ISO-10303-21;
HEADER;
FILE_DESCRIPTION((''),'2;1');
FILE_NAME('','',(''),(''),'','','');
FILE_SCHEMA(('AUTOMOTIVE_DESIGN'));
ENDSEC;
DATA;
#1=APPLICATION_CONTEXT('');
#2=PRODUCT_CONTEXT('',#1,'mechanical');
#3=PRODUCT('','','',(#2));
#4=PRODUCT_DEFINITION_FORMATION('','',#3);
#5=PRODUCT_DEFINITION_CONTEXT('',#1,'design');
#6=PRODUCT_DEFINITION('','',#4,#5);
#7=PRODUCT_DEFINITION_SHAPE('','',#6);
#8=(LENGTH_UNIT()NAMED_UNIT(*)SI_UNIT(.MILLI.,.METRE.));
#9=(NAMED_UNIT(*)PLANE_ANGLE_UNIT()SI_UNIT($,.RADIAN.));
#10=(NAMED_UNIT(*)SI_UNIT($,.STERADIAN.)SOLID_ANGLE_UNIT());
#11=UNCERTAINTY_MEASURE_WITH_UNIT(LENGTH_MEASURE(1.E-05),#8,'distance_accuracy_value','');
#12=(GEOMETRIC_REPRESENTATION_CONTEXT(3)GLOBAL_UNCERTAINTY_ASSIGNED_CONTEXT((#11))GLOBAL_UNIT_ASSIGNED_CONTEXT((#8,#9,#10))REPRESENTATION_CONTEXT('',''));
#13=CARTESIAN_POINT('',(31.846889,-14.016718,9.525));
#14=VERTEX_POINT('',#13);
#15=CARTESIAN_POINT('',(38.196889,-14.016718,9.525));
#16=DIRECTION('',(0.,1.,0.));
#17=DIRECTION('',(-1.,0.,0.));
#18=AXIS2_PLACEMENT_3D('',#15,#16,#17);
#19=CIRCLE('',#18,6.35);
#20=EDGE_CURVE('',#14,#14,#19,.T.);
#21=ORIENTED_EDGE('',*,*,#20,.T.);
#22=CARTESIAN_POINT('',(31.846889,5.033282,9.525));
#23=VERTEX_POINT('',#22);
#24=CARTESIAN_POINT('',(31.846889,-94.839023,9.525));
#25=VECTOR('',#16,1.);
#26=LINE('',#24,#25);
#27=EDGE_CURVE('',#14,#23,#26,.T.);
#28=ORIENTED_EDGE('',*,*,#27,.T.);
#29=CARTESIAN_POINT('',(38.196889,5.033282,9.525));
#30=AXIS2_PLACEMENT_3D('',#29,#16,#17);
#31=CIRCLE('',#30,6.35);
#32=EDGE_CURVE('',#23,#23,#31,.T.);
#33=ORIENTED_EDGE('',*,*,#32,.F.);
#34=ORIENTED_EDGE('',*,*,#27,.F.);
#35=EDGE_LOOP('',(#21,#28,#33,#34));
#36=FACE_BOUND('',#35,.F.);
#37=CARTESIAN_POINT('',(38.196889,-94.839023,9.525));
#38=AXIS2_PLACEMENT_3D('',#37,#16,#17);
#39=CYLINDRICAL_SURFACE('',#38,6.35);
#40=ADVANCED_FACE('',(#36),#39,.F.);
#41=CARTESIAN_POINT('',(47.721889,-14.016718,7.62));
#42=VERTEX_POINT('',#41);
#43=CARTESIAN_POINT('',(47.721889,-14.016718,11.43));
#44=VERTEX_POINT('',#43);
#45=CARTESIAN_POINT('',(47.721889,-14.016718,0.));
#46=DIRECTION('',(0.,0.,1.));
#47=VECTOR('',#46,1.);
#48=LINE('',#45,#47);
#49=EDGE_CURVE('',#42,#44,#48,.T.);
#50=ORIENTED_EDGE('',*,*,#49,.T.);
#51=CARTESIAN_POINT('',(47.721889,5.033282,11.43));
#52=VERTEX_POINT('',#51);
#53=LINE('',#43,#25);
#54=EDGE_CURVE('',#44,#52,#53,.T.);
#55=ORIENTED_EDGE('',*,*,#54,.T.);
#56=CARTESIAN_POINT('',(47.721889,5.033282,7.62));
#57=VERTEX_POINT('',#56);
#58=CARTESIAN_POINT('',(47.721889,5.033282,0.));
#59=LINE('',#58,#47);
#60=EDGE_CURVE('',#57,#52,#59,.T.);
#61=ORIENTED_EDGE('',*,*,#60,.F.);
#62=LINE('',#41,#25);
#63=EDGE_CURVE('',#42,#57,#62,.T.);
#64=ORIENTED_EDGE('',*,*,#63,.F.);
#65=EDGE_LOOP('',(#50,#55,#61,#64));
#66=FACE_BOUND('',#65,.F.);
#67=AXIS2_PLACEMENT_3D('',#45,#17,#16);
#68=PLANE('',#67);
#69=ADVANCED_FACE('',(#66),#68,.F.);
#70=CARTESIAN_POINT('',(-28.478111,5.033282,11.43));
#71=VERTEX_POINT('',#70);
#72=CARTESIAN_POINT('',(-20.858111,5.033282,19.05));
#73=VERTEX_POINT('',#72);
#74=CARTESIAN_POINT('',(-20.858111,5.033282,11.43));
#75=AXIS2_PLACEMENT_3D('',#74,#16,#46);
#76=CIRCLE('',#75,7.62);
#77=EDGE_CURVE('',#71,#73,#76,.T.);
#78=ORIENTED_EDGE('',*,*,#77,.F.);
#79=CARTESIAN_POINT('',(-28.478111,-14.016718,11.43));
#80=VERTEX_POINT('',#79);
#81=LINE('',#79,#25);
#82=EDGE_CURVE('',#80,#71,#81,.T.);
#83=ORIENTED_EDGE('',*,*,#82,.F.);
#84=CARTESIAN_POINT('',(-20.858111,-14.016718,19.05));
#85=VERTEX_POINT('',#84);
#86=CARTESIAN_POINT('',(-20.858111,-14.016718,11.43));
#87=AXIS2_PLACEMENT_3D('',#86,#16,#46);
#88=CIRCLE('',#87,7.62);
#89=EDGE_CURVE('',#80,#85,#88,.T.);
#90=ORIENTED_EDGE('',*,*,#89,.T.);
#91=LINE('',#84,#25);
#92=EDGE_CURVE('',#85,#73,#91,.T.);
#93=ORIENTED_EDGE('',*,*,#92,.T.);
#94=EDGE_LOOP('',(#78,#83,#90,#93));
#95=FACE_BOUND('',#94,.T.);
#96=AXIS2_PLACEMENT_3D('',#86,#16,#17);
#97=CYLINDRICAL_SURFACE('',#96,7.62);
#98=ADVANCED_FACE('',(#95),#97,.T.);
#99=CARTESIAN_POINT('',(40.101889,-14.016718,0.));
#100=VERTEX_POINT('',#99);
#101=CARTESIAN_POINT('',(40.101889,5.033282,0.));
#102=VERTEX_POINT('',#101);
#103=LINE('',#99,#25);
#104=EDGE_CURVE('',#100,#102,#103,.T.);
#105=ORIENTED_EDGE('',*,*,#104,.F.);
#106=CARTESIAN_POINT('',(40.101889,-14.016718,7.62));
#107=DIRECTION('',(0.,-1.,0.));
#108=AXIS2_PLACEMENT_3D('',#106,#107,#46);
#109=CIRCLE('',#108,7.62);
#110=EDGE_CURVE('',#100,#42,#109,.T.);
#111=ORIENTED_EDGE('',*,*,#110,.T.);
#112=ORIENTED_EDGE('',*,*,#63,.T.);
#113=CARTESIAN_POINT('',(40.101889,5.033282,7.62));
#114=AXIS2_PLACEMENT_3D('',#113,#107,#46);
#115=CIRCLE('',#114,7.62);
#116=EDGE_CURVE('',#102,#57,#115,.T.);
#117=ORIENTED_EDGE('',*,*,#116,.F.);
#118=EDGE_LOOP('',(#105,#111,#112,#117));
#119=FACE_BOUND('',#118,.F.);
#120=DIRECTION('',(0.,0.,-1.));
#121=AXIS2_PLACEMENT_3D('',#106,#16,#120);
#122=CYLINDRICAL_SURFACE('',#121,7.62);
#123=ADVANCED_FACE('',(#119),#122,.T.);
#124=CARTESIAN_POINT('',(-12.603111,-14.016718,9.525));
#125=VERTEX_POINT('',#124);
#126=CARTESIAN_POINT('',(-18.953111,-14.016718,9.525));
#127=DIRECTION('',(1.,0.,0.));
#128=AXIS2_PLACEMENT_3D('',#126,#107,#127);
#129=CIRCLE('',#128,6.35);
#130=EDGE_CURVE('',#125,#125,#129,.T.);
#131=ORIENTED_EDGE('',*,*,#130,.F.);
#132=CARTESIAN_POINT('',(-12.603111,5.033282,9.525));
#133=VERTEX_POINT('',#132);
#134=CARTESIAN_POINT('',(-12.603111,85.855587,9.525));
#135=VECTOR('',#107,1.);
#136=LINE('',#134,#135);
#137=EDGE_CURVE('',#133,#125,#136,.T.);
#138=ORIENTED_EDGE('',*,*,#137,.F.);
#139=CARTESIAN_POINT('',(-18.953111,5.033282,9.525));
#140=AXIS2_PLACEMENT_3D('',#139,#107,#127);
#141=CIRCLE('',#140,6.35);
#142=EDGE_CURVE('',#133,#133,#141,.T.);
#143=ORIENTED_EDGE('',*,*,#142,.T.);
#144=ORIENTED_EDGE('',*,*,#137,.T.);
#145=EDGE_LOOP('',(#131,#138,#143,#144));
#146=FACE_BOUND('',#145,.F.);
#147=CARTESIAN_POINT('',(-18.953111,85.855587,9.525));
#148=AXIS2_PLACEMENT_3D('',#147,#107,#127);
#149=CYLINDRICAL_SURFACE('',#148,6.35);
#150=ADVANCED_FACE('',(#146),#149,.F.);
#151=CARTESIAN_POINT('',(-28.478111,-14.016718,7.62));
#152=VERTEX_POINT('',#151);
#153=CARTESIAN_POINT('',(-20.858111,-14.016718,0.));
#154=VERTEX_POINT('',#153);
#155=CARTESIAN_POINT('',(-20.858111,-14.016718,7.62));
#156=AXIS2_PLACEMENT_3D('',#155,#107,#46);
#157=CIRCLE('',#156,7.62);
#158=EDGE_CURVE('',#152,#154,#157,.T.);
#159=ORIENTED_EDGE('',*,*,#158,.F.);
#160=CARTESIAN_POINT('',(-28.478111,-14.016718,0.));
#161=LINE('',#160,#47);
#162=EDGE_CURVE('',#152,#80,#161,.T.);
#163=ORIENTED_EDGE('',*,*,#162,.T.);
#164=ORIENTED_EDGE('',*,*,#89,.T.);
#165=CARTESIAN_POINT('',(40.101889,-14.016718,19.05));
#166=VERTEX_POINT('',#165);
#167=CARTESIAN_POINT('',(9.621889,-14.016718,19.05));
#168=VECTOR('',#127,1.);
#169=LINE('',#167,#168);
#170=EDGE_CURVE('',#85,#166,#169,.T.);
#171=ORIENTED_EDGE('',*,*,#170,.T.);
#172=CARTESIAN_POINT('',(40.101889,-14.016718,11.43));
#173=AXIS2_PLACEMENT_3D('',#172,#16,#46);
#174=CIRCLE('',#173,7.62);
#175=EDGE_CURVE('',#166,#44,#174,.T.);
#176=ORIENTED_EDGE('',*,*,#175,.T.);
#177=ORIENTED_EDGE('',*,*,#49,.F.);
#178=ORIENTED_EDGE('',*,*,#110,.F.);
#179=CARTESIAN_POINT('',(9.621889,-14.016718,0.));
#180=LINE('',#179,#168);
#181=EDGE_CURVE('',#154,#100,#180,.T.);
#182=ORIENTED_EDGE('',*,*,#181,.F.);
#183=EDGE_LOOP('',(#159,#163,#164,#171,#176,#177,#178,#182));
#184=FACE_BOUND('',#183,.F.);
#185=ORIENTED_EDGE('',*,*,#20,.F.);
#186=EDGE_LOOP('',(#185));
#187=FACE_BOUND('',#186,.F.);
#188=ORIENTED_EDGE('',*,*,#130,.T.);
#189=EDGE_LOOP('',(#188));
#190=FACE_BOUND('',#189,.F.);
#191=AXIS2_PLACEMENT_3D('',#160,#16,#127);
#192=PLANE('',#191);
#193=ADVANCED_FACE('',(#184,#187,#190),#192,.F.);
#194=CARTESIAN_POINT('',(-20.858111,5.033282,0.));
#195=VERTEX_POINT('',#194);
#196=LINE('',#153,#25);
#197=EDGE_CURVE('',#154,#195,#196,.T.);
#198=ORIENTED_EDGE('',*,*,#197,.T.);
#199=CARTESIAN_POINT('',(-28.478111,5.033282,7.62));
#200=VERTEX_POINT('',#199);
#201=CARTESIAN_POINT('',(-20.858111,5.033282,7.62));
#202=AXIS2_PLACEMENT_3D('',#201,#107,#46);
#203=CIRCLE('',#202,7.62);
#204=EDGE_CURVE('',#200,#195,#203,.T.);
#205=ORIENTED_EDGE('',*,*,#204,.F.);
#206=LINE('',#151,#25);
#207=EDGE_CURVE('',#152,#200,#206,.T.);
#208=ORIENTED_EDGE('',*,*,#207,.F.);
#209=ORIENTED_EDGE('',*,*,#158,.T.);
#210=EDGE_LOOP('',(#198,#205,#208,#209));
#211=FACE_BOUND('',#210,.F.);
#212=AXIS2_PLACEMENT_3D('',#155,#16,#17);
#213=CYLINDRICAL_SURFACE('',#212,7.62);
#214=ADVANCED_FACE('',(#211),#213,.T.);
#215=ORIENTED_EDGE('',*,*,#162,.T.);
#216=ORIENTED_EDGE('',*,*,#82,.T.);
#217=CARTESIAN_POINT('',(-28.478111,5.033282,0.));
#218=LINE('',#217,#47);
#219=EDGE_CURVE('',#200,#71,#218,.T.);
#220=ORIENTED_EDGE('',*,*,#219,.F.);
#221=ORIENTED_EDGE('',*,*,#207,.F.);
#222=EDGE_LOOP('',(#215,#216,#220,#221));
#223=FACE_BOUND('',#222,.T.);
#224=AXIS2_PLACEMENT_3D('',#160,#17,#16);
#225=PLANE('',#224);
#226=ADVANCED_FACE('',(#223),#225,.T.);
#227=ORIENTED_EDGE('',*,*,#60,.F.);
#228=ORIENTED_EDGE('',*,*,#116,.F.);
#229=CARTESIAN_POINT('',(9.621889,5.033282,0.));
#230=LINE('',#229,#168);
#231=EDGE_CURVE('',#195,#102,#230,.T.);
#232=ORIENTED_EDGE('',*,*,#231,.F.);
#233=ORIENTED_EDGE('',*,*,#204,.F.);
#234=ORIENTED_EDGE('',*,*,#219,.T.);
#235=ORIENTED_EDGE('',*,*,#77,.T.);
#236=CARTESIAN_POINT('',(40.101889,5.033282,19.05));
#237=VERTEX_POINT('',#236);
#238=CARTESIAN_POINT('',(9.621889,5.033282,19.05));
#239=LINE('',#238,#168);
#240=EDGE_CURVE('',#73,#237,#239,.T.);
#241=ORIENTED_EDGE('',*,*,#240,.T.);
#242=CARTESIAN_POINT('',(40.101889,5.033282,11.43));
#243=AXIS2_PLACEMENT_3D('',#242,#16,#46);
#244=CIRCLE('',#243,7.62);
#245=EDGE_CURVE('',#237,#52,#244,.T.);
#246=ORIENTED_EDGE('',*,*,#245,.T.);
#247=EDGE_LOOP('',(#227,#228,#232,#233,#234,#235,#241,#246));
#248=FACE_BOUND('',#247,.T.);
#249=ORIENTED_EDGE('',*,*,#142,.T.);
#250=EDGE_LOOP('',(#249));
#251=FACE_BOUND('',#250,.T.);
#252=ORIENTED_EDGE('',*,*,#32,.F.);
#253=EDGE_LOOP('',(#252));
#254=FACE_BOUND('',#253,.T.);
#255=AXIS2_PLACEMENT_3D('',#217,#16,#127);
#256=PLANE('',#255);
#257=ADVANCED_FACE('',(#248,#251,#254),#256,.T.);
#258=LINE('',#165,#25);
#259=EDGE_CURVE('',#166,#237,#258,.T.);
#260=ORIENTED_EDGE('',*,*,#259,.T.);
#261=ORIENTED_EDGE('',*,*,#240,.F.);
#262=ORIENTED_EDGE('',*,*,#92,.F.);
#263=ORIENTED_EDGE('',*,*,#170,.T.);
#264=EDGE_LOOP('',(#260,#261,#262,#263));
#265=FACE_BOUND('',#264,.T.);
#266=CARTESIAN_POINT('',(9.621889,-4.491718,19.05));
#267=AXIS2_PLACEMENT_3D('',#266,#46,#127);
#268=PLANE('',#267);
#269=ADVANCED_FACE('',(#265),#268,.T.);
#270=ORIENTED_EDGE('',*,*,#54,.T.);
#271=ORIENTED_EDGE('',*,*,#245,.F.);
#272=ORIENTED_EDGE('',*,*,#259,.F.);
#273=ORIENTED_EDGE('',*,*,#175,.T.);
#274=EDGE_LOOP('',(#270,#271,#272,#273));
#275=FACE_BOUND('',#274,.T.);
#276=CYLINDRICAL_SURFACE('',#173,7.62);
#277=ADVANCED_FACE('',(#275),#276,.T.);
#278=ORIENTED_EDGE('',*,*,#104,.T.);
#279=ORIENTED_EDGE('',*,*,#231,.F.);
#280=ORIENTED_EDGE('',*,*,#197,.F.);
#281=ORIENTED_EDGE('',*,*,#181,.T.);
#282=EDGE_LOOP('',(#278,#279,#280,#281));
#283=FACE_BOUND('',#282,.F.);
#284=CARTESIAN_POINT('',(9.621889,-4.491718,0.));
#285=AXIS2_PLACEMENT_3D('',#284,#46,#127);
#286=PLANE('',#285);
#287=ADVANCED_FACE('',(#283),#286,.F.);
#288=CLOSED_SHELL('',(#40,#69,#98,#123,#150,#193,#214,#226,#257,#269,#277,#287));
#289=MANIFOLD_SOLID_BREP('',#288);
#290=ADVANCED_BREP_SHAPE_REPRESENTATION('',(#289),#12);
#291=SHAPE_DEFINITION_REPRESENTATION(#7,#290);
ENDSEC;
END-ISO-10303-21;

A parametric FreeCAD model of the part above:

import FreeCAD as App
import Part
import Sketcher

V = App.Vector
Q = App.Units.Quantity


def edges_at(feature, points):
    """Names of the edges that pass closest to the given points."""
    edges = feature.Shape.Edges
    near = lambda p: min(range(len(edges)), key=lambda i: edges[i].distToShape(Part.Vertex(*p))[0])
    return sorted({f"Edge{near(p) + 1}" for p in points})


def add_polygon(sketch, points):
    """Adds a closed chain of lines whose ends are joined by coincident constraints."""
    first, n = sketch.GeometryCount, len(points)
    for a, b in zip(points, points[1:] + points[:1]):
        sketch.addGeometry(Part.LineSegment(App.Vector(*a, 0), App.Vector(*b, 0)), False)
    for i in range(n):
        sketch.addConstraint(Sketcher.Constraint("Coincident", first + i, 2, first + (i + 1) % n, 1))

doc = App.newDocument("Part")
body = doc.addObject("PartDesign::Body", "Body")

sketch1 = body.newObject("Sketcher::SketchObject", "Sketch")
sketch1.AttachmentSupport = (doc.getObject("XY_Plane"), [""])
sketch1.MapMode = "FlatFace"
add_polygon(sketch1, [(-28.478111, 5.033282), (-28.478111, -14.016718), (47.721889, -14.016718), (47.721889, 5.033282)])
sketch1.addConstraint(Sketcher.Constraint("Vertical", 0))
sketch1.addConstraint(Sketcher.Constraint("Horizontal", 1))
sketch1.addConstraint(Sketcher.Constraint("Vertical", 2))
sketch1.addConstraint(Sketcher.Constraint("Horizontal", 3))
sketch1.addConstraint(Sketcher.Constraint("DistanceX", 1, 1, 1, 2, Q("3 in")))
sketch1.addConstraint(Sketcher.Constraint("DistanceY", 0, 2, 0, 1, Q("0.75 in")))
sketch1.addConstraint(Sketcher.Constraint("DistanceX", 0, 2, -1, 1, Q("28.478111 mm")))
sketch1.addConstraint(Sketcher.Constraint("DistanceY", -1, 1, 2, 2, Q("5.033282 mm")))
pad1 = body.newObject("PartDesign::Pad", "Pad")
pad1.Profile = sketch1
pad1.Length = Q("0.75 in")

sketch2 = body.newObject("Sketcher::SketchObject", "Sketch001")
sketch2.AttachmentSupport = (doc.getObject("XZ_Plane"), [""])
sketch2.MapMode = "FlatFace"
sketch2.AttachmentOffset = App.Placement(V(0, 0, -5.033282), App.Rotation())
sketch2.addGeometry(Part.Circle(V(-18.953111, 9.525, 0), V(0, 0, 1), 6.35), False)
sketch2.addConstraint(Sketcher.Constraint("Diameter", 0, Q("0.5 in")))
sketch2.addConstraint(Sketcher.Constraint("DistanceY", -1, 1, 0, 3, Q("0.375 in")))
sketch2.addConstraint(Sketcher.Constraint("DistanceX", 0, 3, -1, 1, Q("18.953111 mm")))
doc.recompute()
hole = body.newObject("PartDesign::Hole", "Hole")
hole.Profile = sketch2
hole.ThreadType = "None"
hole.Diameter = Q("0.5 in")
hole.DepthType = "ThroughAll"
hole.Reversed = True

sketch3 = body.newObject("Sketcher::SketchObject", "Sketch002")
sketch3.AttachmentSupport = (doc.getObject("XZ_Plane"), [""])
sketch3.MapMode = "FlatFace"
sketch3.AttachmentOffset = App.Placement(V(0, 0, 14.016718), App.Rotation())
sketch3.addGeometry(Part.Circle(V(38.196889, 9.525, 0), V(0, 0, 1), 6.35), False)
sketch3.addConstraint(Sketcher.Constraint("Diameter", 0, Q("0.5 in")))
sketch3.addConstraint(Sketcher.Constraint("DistanceY", -1, 1, 0, 3, Q("0.375 in")))
sketch3.addConstraint(Sketcher.Constraint("DistanceX", -1, 1, 0, 3, Q("38.196889 mm")))
doc.recompute()
hole2 = body.newObject("PartDesign::Hole", "Hole001")
hole2.Profile = sketch3
hole2.ThreadType = "None"
hole2.Diameter = Q("0.5 in")
hole2.DepthType = "ThroughAll"
doc.recompute()

fillet = body.newObject("PartDesign::Fillet", "Fillet")
fillet.Base = (hole2, edges_at(hole2, [
    (47.722, -4.492, 19.05),
    (47.722, -4.492, 0),
    (-28.478, -4.492, 19.05),
    (-28.478, -4.492, 0),
]))
fillet.Radius = Q("0.3 in")

doc.recompute()
